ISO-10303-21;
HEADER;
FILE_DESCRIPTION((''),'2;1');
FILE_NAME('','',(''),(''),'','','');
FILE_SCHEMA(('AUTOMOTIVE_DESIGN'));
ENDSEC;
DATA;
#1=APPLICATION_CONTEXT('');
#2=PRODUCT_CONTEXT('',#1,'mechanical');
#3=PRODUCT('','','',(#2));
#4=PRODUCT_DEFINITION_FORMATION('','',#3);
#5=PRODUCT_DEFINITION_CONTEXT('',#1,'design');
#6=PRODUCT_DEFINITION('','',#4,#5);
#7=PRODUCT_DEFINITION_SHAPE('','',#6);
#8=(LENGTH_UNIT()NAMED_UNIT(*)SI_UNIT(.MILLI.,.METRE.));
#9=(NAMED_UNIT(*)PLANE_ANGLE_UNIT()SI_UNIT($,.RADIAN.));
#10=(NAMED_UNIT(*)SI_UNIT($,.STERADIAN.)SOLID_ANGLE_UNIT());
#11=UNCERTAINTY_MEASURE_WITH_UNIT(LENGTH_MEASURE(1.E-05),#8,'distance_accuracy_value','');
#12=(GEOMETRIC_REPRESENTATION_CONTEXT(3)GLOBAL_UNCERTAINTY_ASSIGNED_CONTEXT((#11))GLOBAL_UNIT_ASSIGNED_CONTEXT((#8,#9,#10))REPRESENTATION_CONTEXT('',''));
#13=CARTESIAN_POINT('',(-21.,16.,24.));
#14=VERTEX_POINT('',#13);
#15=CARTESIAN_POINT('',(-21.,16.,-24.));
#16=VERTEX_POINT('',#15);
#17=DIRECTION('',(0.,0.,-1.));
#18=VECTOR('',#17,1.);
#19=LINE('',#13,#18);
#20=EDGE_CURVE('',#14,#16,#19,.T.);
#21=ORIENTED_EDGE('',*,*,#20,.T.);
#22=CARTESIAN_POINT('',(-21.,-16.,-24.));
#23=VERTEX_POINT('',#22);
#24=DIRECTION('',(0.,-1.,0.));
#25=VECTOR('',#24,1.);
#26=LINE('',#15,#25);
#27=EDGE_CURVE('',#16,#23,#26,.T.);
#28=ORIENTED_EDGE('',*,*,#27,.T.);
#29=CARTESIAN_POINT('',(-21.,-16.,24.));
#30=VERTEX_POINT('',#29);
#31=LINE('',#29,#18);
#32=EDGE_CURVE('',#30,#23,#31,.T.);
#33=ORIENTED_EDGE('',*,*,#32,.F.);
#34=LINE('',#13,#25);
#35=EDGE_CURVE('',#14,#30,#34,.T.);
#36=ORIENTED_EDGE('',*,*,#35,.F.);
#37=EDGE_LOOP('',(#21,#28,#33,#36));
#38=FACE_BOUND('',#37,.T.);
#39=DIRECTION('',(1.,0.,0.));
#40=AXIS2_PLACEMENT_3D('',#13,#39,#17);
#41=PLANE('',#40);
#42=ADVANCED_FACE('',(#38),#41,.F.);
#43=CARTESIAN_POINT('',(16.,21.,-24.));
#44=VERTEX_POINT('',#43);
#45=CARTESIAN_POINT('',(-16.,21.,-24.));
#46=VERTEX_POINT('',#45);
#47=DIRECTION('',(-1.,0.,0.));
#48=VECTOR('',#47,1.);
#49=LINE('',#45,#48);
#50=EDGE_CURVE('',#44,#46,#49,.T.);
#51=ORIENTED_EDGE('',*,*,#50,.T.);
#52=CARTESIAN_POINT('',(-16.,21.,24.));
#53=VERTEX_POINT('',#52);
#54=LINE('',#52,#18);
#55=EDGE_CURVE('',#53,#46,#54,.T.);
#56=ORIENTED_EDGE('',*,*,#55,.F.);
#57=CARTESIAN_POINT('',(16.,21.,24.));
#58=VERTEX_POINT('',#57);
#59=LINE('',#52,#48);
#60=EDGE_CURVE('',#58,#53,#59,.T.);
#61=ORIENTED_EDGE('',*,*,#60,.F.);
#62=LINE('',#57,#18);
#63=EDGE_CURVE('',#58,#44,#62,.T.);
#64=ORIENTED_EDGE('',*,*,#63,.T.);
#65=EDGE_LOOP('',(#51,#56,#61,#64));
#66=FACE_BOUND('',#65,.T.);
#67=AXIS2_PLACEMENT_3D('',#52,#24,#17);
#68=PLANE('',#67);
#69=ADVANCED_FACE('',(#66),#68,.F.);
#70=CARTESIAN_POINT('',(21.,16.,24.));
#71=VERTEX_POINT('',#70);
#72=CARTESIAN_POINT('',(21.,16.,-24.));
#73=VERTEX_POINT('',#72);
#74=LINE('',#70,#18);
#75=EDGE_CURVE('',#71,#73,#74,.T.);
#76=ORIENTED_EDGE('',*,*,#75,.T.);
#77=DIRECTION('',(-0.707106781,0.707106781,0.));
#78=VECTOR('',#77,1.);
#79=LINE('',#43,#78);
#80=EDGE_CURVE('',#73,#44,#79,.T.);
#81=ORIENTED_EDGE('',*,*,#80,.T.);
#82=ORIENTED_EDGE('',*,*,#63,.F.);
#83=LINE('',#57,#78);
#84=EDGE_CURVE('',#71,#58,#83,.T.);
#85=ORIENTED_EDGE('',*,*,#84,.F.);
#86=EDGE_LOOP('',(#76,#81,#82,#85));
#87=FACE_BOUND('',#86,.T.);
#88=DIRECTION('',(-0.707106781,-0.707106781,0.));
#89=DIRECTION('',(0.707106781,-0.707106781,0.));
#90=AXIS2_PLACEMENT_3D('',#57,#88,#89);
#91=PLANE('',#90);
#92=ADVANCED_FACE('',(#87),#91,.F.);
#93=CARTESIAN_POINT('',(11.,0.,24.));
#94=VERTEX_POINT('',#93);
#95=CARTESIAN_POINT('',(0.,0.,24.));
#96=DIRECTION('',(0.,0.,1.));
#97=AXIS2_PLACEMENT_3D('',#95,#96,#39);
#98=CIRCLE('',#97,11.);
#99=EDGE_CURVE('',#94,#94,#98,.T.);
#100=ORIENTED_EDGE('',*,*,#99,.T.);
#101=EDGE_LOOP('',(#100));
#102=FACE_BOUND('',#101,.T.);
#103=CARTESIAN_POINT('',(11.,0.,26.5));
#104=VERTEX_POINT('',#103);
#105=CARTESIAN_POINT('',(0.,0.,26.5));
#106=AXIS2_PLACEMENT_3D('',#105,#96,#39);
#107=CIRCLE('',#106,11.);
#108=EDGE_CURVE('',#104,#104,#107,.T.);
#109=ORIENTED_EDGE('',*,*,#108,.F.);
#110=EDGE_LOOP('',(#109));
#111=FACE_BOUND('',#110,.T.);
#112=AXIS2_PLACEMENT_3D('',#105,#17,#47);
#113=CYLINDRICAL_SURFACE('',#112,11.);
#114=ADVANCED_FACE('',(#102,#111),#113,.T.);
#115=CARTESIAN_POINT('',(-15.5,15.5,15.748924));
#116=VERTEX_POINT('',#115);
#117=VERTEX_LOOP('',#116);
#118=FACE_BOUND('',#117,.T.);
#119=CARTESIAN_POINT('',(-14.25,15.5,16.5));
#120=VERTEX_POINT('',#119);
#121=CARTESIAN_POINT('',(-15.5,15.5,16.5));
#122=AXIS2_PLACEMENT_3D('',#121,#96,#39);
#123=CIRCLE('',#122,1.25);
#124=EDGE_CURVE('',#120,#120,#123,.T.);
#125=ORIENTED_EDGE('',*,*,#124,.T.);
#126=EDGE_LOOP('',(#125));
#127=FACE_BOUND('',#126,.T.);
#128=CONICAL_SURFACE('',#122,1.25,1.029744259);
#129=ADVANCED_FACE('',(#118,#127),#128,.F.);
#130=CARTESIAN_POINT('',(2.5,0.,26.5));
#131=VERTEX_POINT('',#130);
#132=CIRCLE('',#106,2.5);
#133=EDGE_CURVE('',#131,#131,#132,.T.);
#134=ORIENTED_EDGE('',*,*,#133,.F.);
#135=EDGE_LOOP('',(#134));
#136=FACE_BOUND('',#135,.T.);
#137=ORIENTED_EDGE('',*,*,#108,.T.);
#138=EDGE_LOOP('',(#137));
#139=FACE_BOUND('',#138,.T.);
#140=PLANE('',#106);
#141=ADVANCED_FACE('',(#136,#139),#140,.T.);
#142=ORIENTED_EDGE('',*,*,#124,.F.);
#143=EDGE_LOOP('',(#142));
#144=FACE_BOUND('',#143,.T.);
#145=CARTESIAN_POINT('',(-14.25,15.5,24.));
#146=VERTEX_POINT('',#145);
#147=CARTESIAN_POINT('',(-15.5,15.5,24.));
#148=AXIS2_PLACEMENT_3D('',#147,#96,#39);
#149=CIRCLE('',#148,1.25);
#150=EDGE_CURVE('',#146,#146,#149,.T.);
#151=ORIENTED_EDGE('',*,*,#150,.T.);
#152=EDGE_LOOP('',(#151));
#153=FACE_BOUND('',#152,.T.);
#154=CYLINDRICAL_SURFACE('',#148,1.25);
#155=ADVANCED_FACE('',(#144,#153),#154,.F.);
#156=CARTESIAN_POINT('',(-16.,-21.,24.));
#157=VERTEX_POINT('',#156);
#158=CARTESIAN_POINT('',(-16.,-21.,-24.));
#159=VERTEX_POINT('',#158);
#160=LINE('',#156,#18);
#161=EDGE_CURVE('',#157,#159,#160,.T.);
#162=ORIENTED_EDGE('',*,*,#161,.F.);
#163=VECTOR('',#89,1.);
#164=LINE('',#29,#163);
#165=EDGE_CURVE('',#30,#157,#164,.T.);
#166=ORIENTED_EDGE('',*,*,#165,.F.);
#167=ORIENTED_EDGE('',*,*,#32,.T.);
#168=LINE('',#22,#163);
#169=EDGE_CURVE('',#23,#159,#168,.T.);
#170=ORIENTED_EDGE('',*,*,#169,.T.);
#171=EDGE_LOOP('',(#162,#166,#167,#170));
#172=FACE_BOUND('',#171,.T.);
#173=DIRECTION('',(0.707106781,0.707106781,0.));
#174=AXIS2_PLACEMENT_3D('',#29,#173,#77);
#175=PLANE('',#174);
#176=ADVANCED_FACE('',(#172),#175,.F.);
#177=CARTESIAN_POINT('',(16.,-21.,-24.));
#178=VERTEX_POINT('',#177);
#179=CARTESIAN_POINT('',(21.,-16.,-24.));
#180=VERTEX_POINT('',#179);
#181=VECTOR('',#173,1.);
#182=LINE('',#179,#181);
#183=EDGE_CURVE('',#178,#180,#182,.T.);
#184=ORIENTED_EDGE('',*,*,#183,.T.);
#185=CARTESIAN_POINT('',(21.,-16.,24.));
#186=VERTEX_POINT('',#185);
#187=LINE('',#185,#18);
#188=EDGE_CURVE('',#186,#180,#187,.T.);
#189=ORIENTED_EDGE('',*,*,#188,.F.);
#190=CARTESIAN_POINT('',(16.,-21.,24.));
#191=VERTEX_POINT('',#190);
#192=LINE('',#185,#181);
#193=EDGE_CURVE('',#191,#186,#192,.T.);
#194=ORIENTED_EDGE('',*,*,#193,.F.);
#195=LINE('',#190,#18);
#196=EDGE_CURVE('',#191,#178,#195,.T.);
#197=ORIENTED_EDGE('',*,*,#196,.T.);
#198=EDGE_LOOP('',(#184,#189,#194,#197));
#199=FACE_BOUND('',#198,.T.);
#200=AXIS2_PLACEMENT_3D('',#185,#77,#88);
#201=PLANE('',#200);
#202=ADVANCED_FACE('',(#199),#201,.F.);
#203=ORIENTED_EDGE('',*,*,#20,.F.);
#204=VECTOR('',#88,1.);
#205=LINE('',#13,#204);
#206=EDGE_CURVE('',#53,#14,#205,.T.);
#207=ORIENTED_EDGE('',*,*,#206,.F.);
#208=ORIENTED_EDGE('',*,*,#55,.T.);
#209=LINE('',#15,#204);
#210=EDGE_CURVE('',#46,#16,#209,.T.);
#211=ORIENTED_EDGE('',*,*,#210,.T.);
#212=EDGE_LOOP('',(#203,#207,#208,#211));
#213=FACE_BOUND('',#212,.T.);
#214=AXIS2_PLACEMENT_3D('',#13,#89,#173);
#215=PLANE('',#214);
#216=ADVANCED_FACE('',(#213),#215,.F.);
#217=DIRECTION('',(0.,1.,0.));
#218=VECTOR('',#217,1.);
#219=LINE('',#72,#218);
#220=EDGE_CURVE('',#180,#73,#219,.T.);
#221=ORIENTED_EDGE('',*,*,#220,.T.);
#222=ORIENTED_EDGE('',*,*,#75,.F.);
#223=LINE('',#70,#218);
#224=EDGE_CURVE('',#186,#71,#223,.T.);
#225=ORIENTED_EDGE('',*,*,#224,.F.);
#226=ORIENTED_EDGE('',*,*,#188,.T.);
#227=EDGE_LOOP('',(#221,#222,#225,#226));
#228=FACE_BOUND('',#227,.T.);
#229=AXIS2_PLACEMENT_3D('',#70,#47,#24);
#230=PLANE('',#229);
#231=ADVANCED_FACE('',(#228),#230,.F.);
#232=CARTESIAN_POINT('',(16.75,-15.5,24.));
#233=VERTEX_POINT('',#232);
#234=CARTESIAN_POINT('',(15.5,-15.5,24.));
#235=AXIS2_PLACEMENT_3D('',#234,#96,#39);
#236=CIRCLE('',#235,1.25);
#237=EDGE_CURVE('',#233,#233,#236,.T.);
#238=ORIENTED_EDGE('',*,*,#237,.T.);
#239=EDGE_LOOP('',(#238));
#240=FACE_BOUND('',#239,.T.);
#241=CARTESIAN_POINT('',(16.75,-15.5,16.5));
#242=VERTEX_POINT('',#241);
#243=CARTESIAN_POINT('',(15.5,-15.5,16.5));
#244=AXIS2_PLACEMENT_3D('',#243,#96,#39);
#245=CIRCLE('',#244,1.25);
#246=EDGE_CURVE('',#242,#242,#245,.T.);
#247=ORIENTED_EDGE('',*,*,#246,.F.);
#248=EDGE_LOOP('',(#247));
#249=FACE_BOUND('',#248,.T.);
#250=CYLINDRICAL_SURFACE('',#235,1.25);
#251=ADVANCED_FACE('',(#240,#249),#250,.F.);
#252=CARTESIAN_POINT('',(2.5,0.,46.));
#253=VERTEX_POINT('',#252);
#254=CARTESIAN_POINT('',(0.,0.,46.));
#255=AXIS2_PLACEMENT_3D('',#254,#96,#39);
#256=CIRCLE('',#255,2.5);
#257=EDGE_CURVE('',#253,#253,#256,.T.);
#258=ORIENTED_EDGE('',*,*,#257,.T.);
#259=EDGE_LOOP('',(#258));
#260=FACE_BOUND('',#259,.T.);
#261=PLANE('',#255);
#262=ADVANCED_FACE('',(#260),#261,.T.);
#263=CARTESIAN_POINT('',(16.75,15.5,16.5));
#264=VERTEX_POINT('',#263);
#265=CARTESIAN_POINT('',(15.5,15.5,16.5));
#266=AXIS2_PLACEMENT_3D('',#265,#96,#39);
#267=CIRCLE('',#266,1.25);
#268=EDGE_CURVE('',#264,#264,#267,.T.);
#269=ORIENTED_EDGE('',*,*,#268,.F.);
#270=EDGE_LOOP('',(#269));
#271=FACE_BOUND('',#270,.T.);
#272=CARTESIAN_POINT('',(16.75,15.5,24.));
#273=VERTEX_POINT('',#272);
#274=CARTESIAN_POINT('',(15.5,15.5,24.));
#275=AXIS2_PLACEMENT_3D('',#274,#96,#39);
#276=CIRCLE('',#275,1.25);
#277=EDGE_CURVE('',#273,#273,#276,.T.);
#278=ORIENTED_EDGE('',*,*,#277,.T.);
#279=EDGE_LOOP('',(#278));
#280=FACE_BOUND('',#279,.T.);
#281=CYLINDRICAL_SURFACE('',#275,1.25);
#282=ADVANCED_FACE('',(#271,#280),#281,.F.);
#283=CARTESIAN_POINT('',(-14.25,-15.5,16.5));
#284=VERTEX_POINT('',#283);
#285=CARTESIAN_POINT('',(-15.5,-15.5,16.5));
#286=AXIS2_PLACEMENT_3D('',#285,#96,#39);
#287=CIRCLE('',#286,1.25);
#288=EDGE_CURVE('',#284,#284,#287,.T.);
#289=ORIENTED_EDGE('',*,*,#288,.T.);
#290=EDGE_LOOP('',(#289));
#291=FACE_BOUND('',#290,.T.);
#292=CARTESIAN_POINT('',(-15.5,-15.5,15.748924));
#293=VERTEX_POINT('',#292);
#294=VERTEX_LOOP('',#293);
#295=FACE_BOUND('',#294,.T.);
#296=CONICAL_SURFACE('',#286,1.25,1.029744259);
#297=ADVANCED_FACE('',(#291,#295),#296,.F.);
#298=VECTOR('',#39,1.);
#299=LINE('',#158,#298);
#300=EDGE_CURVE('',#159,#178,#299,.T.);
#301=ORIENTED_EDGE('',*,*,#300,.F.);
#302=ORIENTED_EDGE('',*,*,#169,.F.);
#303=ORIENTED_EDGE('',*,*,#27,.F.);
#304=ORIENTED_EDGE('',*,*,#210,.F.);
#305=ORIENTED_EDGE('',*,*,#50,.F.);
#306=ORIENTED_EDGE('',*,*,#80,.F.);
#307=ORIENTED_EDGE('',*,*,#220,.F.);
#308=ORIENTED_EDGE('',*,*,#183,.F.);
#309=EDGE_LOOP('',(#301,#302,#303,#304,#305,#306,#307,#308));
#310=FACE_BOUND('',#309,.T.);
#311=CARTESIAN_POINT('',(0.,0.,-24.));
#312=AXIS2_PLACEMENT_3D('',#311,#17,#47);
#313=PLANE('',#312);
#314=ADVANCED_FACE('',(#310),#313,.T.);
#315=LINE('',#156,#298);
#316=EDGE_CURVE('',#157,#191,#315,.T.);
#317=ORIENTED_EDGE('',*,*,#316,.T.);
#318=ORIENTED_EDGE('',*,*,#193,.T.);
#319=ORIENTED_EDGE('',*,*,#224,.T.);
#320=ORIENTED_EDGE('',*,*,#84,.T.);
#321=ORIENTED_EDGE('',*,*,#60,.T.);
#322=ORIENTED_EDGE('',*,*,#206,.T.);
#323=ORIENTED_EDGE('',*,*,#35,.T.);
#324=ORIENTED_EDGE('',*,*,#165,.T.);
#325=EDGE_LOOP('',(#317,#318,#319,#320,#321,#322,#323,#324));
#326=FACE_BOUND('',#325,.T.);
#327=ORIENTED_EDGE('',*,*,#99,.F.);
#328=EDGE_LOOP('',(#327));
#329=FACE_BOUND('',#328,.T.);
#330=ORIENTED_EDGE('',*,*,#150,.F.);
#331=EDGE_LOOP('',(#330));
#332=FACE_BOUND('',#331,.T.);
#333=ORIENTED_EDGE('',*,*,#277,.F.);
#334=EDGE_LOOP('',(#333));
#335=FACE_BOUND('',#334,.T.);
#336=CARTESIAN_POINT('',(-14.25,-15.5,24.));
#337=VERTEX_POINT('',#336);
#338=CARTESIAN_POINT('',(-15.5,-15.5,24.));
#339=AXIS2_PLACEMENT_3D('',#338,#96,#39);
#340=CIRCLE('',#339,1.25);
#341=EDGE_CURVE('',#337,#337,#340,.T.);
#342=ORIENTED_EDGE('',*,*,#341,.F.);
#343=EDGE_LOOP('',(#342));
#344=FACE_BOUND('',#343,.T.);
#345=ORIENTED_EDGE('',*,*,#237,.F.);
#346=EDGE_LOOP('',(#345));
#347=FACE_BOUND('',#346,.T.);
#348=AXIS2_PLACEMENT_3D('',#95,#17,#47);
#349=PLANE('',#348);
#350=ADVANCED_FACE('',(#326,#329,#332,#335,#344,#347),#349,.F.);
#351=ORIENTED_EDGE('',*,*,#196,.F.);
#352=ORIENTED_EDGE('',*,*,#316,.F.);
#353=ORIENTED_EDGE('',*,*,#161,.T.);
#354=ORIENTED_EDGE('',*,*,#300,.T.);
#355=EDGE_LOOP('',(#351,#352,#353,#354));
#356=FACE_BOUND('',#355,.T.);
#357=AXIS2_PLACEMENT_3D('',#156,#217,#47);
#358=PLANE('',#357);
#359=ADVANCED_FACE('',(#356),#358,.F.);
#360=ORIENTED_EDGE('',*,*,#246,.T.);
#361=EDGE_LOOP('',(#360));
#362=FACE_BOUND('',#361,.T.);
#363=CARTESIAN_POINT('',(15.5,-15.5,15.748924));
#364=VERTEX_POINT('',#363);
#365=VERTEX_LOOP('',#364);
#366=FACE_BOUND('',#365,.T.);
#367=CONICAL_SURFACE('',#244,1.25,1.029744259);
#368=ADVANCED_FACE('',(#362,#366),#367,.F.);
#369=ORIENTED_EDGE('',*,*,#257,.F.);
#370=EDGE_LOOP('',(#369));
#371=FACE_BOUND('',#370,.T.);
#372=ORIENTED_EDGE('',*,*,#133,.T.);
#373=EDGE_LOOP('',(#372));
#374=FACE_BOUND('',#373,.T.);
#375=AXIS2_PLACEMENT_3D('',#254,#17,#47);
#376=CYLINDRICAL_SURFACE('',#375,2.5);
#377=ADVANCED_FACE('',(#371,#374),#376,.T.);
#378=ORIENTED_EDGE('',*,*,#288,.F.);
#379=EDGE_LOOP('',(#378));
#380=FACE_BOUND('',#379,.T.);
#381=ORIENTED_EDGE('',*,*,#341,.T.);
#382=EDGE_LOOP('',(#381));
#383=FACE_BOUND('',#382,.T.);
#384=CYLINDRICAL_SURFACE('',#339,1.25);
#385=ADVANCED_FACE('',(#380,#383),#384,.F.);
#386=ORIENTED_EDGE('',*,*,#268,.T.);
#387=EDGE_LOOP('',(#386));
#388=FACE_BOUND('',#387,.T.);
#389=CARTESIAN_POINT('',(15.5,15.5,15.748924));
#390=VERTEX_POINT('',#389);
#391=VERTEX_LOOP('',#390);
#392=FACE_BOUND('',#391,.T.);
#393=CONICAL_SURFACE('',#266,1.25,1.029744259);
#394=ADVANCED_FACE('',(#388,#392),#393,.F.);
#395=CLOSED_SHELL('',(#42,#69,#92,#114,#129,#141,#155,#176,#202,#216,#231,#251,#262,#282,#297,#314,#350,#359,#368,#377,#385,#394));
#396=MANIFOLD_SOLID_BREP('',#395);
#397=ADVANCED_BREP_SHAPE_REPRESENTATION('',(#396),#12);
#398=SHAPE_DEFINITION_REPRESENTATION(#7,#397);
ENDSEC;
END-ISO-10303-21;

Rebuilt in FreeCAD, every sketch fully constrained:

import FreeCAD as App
import Part
import Sketcher
Q = App.Units.Quantity

doc = App.newDocument("Part")
body = doc.addObject("PartDesign::Body", "Body")

# Sketch on XY plane
sketch1 = body.newObject("Sketcher::SketchObject", "Sketch")
sketch1.AttachmentSupport = (doc.getObject("XY_Plane"), [""])
sketch1.MapMode = "FlatFace"
sketch1.addGeometry(Part.LineSegment(App.Vector(-16, 21, 0), App.Vector(-21, 16, 0)), False)
sketch1.addGeometry(Part.LineSegment(App.Vector(-21, 16, 0), App.Vector(-21, -16, 0)), False)
sketch1.addGeometry(Part.LineSegment(App.Vector(-21, -16, 0), App.Vector(-16, -21, 0)), False)
sketch1.addGeometry(Part.LineSegment(App.Vector(-16, -21, 0), App.Vector(16, -21, 0)), False)
sketch1.addGeometry(Part.LineSegment(App.Vector(16, -21, 0), App.Vector(21, -16, 0)), False)
sketch1.addGeometry(Part.LineSegment(App.Vector(21, -16, 0), App.Vector(21, 16, 0)), False)
sketch1.addGeometry(Part.LineSegment(App.Vector(21, 16, 0), App.Vector(16, 21, 0)), False)
sketch1.addGeometry(Part.LineSegment(App.Vector(16, 21, 0), App.Vector(-16, 21, 0)), False)
sketch1.addConstraint(Sketcher.Constraint("Coincident", 0, 2, 1, 1))
sketch1.addConstraint(Sketcher.Constraint("Coincident", 1, 2, 2, 1))
sketch1.addConstraint(Sketcher.Constraint("Coincident", 2, 2, 3, 1))
sketch1.addConstraint(Sketcher.Constraint("Coincident", 3, 2, 4, 1))
sketch1.addConstraint(Sketcher.Constraint("Coincident", 4, 2, 5, 1))
sketch1.addConstraint(Sketcher.Constraint("Coincident", 5, 2, 6, 1))
sketch1.addConstraint(Sketcher.Constraint("Coincident", 6, 2, 7, 1))
sketch1.addConstraint(Sketcher.Constraint("Coincident", 7, 2, 0, 1))
sketch1.addConstraint(Sketcher.Constraint("Vertical", 1))
sketch1.addConstraint(Sketcher.Constraint("Horizontal", 3))
sketch1.addConstraint(Sketcher.Constraint("Vertical", 5))
sketch1.addConstraint(Sketcher.Constraint("Horizontal", 7))
sketch1.addConstraint(Sketcher.Constraint("Symmetric", 0, 2, 4, 2, -1, 1))
sketch1.addConstraint(Sketcher.Constraint("Symmetric", 2, 2, 6, 2, -1, 1))
sketch1.addConstraint(Sketcher.Constraint("Perpendicular", 0, 2))
sketch1.addConstraint(Sketcher.Constraint("Perpendicular", 2, 4))
sketch1.addConstraint(Sketcher.Constraint("Perpendicular", 4, 6))
sketch1.addConstraint(Sketcher.Constraint("Horizontal", 1, 2, 4, 2))
sketch1.addConstraint(Sketcher.Constraint("Vertical", 3, 2, 6, 2))
sketch1.addConstraint(Sketcher.Constraint("Equal", 7, 1))
sketch1.addConstraint(Sketcher.Constraint("DistanceX", 3, 1, 3, 2, Q("32 mm")))
sketch1.addConstraint(Sketcher.Constraint("DistanceX", 0, 2, -1, 1, Q("21 mm")))
pad1 = body.newObject("PartDesign::Pad", "Pad")
pad1.Profile = sketch1
pad1.Length = 48
pad1.Midplane = True

# Sketch on XY plane
sketch2 = body.newObject("Sketcher::SketchObject", "Sketch001")
sketch2.AttachmentSupport = (doc.getObject("XY_Plane"), [""])
sketch2.MapMode = "FlatFace"
sketch2.AttachmentOffset = App.Placement(App.Vector(0, 0, 24), App.Rotation())
sketch2.addGeometry(Part.Circle(App.Vector(0, 0, 0), App.Vector(0, 0, 1), 11), False)
sketch2.addGeometry(Part.Circle(App.Vector(0, 0, 0), App.Vector(0, 0, 1), 2.5), False)
sketch2.addConstraint(Sketcher.Constraint("Coincident", 0, 3, -1, 1))
sketch2.addConstraint(Sketcher.Constraint("Coincident", 1, 3, -1, 1))
sketch2.addConstraint(Sketcher.Constraint("Diameter", 0, Q("22 mm")))
sketch2.addConstraint(Sketcher.Constraint("Diameter", 1, Q("5 mm")))
pad2 = body.newObject("PartDesign::Pad", "Pad001")
pad2.Profile = sketch2
pad2.Length = 2.5

# Sketch on XY plane
sketch3 = body.newObject("Sketcher::SketchObject", "Sketch002")
sketch3.AttachmentSupport = (doc.getObject("XY_Plane"), [""])
sketch3.MapMode = "FlatFace"
sketch3.AttachmentOffset = App.Placement(App.Vector(0, 0, 24), App.Rotation())
sketch3.addGeometry(Part.Circle(App.Vector(0, 0, 0), App.Vector(0, 0, 1), 2.5), False)
sketch3.addConstraint(Sketcher.Constraint("Coincident", 0, 3, -1, 1))
sketch3.addConstraint(Sketcher.Constraint("Diameter", 0, Q("5 mm")))
pad3 = body.newObject("PartDesign::Pad", "Pad002")
pad3.Profile = sketch3
pad3.Length = 22

# Sketch on XY plane
sketch4 = body.newObject("Sketcher::SketchObject", "Sketch003")
sketch4.AttachmentSupport = (doc.getObject("XY_Plane"), [""])
sketch4.MapMode = "FlatFace"
sketch4.AttachmentOffset = App.Placement(App.Vector(0, 0, 24), App.Rotation())
sketch4.addGeometry(Part.Circle(App.Vector(-15.5, 15.5, 0), App.Vector(0, 0, 1), 1.2), False)
sketch4.addGeometry(Part.Circle(App.Vector(15.5, 15.5, 0), App.Vector(0, 0, 1), 1.2), False)
sketch4.addGeometry(Part.Circle(App.Vector(15.5, -15.5, 0), App.Vector(0, 0, 1), 1.2), False)
sketch4.addGeometry(Part.Circle(App.Vector(-15.5, -15.5, 0), App.Vector(0, 0, 1), 1.2), False)
sketch4.addConstraint(Sketcher.Constraint("Equal", 0, 1))
sketch4.addConstraint(Sketcher.Constraint("Equal", 1, 2))
sketch4.addConstraint(Sketcher.Constraint("Equal", 2, 3))
sketch4.addConstraint(Sketcher.Constraint("Symmetric", 0, 3, 2, 3, -1, 1))
sketch4.addConstraint(Sketcher.Constraint("Symmetric", 1, 3, 3, 3, -1, 1))
sketch4.addConstraint(Sketcher.Constraint("Symmetric", 0, 3, 1, 3, -2))
sketch4.addConstraint(Sketcher.Constraint("Diameter", 0, Q("2.5 mm")))
sketch4.addConstraint(Sketcher.Constraint("DistanceX", 0, 3, 1, 3, Q("31 mm")))
sketch4.addConstraint(Sketcher.Constraint("DistanceY", 2, 3, 1, 3, Q("31 mm")))
doc.recompute()
hole = body.newObject("PartDesign::Hole", "Hole")
hole.Profile = sketch4
hole.ThreadType = "None"
hole.Diameter = 2.5
hole.DepthType = "Dimension"
hole.Depth = 7.5
hole.DrillPoint = "Angled"
hole.DrillPointAngle = 118

doc.recompute()
